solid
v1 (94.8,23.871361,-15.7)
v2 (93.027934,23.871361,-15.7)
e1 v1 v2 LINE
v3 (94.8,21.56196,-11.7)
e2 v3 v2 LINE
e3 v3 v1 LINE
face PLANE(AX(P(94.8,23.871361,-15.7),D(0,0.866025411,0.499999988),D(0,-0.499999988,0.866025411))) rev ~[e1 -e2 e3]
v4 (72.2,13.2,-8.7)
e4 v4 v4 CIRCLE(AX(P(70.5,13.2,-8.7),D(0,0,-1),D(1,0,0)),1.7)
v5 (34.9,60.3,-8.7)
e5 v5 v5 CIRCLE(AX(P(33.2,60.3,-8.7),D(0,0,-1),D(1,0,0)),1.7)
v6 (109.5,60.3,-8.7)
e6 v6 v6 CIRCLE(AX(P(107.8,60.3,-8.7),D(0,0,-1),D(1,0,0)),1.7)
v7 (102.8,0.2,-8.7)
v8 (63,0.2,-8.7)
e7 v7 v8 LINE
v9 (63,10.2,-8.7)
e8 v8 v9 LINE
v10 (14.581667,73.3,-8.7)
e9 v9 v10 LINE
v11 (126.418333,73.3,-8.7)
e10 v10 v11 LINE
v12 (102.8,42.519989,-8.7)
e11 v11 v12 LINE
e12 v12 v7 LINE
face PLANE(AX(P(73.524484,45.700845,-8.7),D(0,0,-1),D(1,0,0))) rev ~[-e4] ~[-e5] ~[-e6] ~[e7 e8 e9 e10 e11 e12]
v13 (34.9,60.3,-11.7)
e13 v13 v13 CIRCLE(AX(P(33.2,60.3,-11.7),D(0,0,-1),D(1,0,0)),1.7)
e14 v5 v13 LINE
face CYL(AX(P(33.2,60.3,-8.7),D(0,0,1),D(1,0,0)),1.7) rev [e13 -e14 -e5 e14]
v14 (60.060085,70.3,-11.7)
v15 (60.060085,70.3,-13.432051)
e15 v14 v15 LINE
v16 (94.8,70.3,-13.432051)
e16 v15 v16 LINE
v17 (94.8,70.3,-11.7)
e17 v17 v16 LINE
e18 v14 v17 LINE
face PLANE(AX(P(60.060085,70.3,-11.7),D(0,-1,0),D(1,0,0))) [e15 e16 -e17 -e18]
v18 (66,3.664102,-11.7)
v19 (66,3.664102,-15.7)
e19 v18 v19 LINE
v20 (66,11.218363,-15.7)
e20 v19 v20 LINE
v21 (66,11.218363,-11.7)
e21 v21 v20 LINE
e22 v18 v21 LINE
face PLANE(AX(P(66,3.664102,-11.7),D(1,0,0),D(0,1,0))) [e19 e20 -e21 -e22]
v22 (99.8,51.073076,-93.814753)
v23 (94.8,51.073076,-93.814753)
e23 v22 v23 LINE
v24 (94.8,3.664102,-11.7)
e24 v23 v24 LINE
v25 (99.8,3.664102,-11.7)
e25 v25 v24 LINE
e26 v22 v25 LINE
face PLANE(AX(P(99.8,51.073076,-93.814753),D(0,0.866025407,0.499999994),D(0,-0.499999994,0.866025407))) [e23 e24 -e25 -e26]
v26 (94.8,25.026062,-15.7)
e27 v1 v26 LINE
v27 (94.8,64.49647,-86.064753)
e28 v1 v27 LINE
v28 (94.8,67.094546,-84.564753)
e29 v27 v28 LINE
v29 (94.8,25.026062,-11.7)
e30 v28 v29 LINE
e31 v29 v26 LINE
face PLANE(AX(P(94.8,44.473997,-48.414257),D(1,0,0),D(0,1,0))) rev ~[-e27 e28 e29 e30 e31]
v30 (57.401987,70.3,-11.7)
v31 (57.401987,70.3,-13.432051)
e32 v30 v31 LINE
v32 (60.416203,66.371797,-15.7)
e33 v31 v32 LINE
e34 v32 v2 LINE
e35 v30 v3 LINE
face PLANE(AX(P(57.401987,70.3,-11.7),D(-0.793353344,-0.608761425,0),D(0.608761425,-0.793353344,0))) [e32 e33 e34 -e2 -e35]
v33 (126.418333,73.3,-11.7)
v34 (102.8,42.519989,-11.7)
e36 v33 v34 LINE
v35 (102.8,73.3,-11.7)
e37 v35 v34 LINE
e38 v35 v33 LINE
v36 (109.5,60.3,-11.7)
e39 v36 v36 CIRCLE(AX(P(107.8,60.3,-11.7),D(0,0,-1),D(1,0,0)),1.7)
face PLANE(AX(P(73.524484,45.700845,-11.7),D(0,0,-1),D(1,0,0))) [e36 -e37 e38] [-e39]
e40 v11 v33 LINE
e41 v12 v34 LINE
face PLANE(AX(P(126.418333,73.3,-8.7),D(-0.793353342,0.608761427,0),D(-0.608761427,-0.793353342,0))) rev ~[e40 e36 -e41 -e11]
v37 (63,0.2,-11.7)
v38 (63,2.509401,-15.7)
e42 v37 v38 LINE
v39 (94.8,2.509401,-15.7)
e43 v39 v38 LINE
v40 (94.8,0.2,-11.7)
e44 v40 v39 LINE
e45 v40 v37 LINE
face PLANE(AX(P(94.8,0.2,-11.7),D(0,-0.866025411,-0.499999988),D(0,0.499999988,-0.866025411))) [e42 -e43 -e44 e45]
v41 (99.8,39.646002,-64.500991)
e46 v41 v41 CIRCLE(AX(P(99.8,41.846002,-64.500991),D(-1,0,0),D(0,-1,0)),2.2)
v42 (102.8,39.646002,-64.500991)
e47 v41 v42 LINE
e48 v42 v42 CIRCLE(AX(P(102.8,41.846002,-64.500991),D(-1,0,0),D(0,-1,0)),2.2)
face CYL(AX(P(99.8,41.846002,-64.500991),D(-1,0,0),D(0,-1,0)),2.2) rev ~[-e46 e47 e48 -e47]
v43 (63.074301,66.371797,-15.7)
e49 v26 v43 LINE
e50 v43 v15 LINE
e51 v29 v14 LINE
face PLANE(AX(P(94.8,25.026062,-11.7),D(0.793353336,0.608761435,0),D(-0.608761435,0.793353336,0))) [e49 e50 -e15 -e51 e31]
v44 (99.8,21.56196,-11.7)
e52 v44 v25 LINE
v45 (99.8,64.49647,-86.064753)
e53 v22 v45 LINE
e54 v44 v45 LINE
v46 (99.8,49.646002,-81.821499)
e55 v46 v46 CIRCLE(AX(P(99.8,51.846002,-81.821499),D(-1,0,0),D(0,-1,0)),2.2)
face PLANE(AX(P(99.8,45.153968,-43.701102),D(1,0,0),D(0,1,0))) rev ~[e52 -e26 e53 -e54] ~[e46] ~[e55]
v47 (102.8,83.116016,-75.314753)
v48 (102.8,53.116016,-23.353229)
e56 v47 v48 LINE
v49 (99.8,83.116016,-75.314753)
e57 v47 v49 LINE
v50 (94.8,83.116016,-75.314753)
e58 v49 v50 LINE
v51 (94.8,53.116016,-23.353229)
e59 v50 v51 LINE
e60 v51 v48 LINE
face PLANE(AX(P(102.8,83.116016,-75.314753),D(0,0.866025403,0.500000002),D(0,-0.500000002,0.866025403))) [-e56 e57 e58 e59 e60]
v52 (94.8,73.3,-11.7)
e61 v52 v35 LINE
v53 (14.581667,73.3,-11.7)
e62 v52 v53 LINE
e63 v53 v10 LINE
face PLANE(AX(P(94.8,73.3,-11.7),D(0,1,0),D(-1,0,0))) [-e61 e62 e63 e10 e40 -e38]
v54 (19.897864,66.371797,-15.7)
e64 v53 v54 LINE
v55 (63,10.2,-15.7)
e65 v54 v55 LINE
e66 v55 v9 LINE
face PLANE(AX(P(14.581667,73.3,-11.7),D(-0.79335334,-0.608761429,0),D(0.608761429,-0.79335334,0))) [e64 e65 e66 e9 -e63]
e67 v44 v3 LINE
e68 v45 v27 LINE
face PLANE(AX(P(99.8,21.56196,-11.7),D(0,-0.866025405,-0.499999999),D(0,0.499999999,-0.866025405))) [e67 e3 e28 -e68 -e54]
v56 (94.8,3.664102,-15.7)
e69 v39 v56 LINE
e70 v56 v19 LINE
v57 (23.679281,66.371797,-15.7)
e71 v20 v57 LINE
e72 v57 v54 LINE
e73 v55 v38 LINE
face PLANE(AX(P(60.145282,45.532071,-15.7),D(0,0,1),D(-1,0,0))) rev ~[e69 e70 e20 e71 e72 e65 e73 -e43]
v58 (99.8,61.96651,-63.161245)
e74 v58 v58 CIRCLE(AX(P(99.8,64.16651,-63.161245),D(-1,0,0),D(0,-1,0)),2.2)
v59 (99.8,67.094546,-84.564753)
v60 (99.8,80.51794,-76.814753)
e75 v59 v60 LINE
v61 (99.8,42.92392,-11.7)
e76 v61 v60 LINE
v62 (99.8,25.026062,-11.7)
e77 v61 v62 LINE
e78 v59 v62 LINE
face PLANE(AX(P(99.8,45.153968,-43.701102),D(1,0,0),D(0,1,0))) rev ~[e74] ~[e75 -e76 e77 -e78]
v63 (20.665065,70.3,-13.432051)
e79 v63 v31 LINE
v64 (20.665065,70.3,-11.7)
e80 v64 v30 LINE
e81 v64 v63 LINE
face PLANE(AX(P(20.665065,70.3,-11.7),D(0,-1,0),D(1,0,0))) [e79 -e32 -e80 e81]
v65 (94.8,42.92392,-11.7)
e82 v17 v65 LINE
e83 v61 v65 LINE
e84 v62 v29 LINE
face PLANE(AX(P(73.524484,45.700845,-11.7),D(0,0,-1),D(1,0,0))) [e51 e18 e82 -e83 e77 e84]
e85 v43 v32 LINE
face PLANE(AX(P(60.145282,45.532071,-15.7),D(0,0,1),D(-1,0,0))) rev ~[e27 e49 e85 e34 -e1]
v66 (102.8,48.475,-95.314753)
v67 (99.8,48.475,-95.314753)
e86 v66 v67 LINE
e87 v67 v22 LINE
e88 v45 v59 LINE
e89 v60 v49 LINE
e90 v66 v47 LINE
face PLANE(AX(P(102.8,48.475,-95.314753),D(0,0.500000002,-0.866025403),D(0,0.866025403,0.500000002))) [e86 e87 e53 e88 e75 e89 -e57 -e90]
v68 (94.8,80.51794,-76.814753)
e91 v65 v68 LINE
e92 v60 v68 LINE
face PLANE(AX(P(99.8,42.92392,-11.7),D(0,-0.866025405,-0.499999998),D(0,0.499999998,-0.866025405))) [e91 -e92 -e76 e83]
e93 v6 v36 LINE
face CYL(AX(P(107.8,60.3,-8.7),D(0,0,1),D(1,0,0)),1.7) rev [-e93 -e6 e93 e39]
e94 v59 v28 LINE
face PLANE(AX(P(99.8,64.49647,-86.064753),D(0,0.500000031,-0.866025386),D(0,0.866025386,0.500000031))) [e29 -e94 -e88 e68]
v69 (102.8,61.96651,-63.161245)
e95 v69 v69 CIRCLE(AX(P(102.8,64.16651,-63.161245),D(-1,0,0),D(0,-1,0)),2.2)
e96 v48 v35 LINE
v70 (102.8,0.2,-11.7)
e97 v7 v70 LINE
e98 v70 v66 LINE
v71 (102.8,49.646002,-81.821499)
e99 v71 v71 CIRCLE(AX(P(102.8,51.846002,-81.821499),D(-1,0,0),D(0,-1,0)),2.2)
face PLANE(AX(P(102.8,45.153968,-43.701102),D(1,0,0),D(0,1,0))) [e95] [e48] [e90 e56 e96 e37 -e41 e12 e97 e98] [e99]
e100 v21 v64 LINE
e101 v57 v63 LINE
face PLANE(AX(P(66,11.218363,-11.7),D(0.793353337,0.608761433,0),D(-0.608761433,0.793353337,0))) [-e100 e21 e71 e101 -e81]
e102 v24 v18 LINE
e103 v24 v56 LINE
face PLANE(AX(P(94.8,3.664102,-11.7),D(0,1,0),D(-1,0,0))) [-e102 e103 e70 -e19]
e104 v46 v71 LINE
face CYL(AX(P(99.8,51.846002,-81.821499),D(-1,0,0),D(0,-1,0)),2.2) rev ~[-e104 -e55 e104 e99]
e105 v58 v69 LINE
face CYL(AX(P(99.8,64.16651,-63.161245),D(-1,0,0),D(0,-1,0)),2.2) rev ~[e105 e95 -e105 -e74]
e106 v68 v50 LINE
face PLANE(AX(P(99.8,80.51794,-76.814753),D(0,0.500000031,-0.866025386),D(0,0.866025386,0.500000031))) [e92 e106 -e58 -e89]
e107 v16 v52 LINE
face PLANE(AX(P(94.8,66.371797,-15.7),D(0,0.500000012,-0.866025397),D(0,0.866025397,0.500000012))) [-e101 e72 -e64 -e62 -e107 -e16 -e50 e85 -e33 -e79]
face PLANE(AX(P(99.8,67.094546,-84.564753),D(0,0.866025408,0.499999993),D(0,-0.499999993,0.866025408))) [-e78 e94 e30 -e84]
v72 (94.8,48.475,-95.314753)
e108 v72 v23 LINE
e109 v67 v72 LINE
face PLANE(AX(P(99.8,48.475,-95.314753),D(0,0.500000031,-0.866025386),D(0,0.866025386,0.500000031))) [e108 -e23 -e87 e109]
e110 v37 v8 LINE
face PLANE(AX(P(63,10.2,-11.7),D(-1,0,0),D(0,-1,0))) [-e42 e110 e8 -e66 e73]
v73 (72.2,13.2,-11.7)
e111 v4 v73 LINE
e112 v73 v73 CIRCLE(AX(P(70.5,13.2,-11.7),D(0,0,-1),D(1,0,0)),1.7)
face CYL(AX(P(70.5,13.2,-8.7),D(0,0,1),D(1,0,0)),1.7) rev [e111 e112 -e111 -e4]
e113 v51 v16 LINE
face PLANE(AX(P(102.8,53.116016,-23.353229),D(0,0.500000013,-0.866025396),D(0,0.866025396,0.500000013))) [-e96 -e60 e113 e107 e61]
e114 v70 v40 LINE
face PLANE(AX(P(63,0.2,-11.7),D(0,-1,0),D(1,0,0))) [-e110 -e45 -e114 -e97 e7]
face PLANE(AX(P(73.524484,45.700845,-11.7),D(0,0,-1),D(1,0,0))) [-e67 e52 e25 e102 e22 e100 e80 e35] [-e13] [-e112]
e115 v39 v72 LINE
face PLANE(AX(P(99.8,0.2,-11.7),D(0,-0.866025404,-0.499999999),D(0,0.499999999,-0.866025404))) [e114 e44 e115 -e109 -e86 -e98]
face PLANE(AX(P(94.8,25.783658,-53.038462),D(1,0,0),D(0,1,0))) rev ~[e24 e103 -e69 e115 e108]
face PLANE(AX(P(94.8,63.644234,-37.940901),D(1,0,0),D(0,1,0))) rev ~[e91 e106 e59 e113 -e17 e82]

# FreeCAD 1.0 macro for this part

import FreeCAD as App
import Part
import Sketcher
Q = App.Units.Quantity


def add_polygon(sketch, points):
    """Adds a closed chain of lines whose ends are joined by coincident constraints."""
    first, n = sketch.GeometryCount, len(points)
    for a, b in zip(points, points[1:] + points[:1]):
        sketch.addGeometry(Part.LineSegment(App.Vector(*a, 0), App.Vector(*b, 0)), False)
    for i in range(n):
        sketch.addConstraint(Sketcher.Constraint("Coincident", first + i, 2, first + (i + 1) % n, 1))

doc = App.newDocument("Part")
body = doc.addObject("PartDesign::Body", "Body")

sketch1 = doc.addObject("Sketcher::SketchObject", "Sketch")
body.addObject(sketch1)
sketch1.AttachmentSupport = (doc.XY_Plane, [""])
sketch1.MapMode = "FlatFace"
sketch1.AttachmentOffset = App.Placement(App.Vector(0, 0, -8.7), App.Rotation())
add_polygon(sketch1, [(63, 0.2), (63, 10.2), (14.6, 73.3), (126.4, 73.3), (102.8, 42.5), (102.8, 0.2)])
sketch1.addGeometry(Part.Circle(App.Vector(33.2, 60.3, 0), App.Vector(0, 0, 1), 1.7), False)
sketch1.addGeometry(Part.Circle(App.Vector(107.8, 60.3, 0), App.Vector(0, 0, 1), 1.7), False)
sketch1.addGeometry(Part.Circle(App.Vector(70.5, 13.2, 0), App.Vector(0, 0, 1), 1.7), False)
sketch1.addConstraint([
    Sketcher.Constraint("Vertical", 0),
    Sketcher.Constraint("Horizontal", 2),
    Sketcher.Constraint("Vertical", 4),
    Sketcher.Constraint("Horizontal", 5),
    Sketcher.Constraint("Equal", 6, 7),
    Sketcher.Constraint("Equal", 7, 8),
    Sketcher.Constraint("Horizontal", 6, 3, 7, 3),
    Sketcher.Constraint("Diameter", 6, Q("3.4 mm")),
    Sketcher.Constraint("DistanceY", 0, 1, 0, 2, Q("10 mm")),
    Sketcher.Constraint("DistanceX", 5, 2, 5, 1, Q("39.8 mm")),
    Sketcher.Constraint("DistanceX", -1, 1, 0, 2, Q("63 mm")),
    Sketcher.Constraint("Angle", 1, Q("127.5 deg")),
    Sketcher.Constraint("Angle", 3, Q("-127.5 deg")),
    Sketcher.Constraint("DistanceY", 0, 2, 8, 3, Q("3 mm")),
    Sketcher.Constraint("DistanceY", 6, 3, 1, 2, Q("13 mm")),
    Sketcher.Constraint("DistanceX", 3, 2, 7, 3, Q("5 mm")),
    Sketcher.Constraint("DistanceX", -1, 1, 6, 3, Q("33.2 mm")),
    Sketcher.Constraint("DistanceY", -1, 1, 6, 3, Q("60.3 mm")),
    Sketcher.Constraint("DistanceX", -1, 1, 8, 3, Q("70.5 mm")),
    Sketcher.Constraint("DistanceY", -1, 1, 8, 3, Q("13.2 mm")),
    Sketcher.Constraint("DistanceY", 4, 2, 4, 1, Q("42.319989 mm")),
])
pad1 = doc.addObject("PartDesign::Pad", "Pad")
body.addObject(pad1)
pad1.Profile = sketch1
pad1.Length = 3
pad1.Reversed = True

sketch2 = doc.addObject("Sketcher::SketchObject", "Sketch001")
body.addObject(sketch2)
sketch2.AttachmentSupport = (doc.YZ_Plane, [""])
sketch2.MapMode = "FlatFace"
sketch2.AttachmentOffset = App.Placement(App.Vector(0, 0, 102.8), App.Rotation())
add_polygon(sketch2, [(0, -12), (48, -95), (83, -75), (53, -23), (73, -12)])
sketch2.addConstraint([
    Sketcher.Constraint("Horizontal", 4),
    Sketcher.Constraint("Perpendicular", 0, 1),
    Sketcher.Constraint("Perpendicular", 1, 2),
    Sketcher.Constraint("Perpendicular", 2, 3),
    Sketcher.Constraint("Angle", 0, Q("-60 deg")),
    Sketcher.Constraint("Distance", 1, Q("40 mm")),
    Sketcher.Constraint("Distance", 2, Q("60 mm")),
    Sketcher.Constraint("DistanceX", 4, 2, 4, 1, Q("73.1 mm")),
    Sketcher.Constraint("DistanceX", -1, 1, 3, 2, Q("73.3 mm")),
    Sketcher.Constraint("DistanceY", 3, 2, -1, 1, Q("11.7 mm")),
])
pad2 = doc.addObject("PartDesign::Pad", "Pad001")
body.addObject(pad2)
pad2.Profile = sketch2
pad2.Length = 3
pad2.Reversed = True

sketch3 = doc.addObject("Sketcher::SketchObject", "Sketch002")
body.addObject(sketch3)
sketch3.AttachmentSupport = (doc.YZ_Plane, [""])
sketch3.MapMode = "FlatFace"
sketch3.AttachmentOffset = App.Placement(App.Vector(0, 0, 99.8), App.Rotation())
sketch3.addGeometry([
    Part.Circle(App.Vector(51.8, -81.8, 0), App.Vector(0, 0, 1), 2.2),
    Part.Circle(App.Vector(41.8, -64.5, 0), App.Vector(0, 0, 1), 2.2),
    Part.Circle(App.Vector(64.2, -63.2, 0), App.Vector(0, 0, 1), 2.2),
], False)
sketch3.addConstraint([
    Sketcher.Constraint("Equal", 0, 1),
    Sketcher.Constraint("Equal", 1, 2),
    Sketcher.Constraint("Diameter", 0, Q("4.4 mm")),
    Sketcher.Constraint("DistanceX", 1, 3, 0, 3, Q("10 mm")),
    Sketcher.Constraint("DistanceY", 0, 3, -1, 1, Q("81.821499 mm")),
    Sketcher.Constraint("DistanceY", 1, 3, -1, 1, Q("64.500991 mm")),
    Sketcher.Constraint("DistanceX", -1, 1, 2, 3, Q("64.16651 mm")),
    Sketcher.Constraint("DistanceX", 0, 3, 2, 3, Q("12.320508 mm")),
    Sketcher.Constraint("DistanceY", 2, 3, -1, 1, Q("63.161245 mm")),
])
pocket1 = doc.addObject("PartDesign::Pocket", "Pocket")
body.addObject(pocket1)
pocket1.Profile = sketch3
pocket1.Type = "ThroughAll"
pocket1.Reversed = True

sketch4 = doc.addObject("Sketcher::SketchObject", "Sketch003")
body.addObject(sketch4)
sketch4.AttachmentSupport = (doc.YZ_Plane, [""])
sketch4.MapMode = "FlatFace"
sketch4.AttachmentOffset = App.Placement(App.Vector(0, 0, 99.8), App.Rotation())
add_polygon(sketch4, [(48.5, -95.3), (0.2, -11.7), (3.7, -11.7), (51.1, -93.8)])
add_polygon(sketch4, [(80.5, -76.8), (42.9, -11.7), (73.3, -11.7), (53.1, -23.4), (83.1, -75.3)])
add_polygon(sketch4, [(64.5, -86.1), (21.6, -11.7), (25, -11.7), (67.1, -84.6)])
sketch4.addConstraint([
    Sketcher.Constraint("Horizontal", 1),
    Sketcher.Constraint("Horizontal", 5),
    Sketcher.Constraint("Horizontal", 10),
    Sketcher.Constraint("Parallel", 0, 2),
    Sketcher.Constraint("Perpendicular", 2, 3),
    Sketcher.Constraint("Perpendicular", 3, 4),
    Sketcher.Constraint("Perpendicular", 4, 6),
    Sketcher.Constraint("Perpendicular", 6, 7),
    Sketcher.Constraint("Perpendicular", 7, 8),
    Sketcher.Constraint("Perpendicular", 8, 9),
    Sketcher.Constraint("Parallel", 9, 11),
    Sketcher.Constraint("Perpendicular", 11, 12),
    Sketcher.Constraint("Horizontal", 1, 2, 4, 2),
    Sketcher.Constraint("Horizontal", 5, 2, 9, 2),
    Sketcher.Constraint("Equal", 1, 10),
    Sketcher.Constraint("Equal", 3, 8),
    Sketcher.Constraint("Angle", 0, Q("120 deg")),
    Sketcher.Constraint("Distance", 3, Q("3 mm")),
    Sketcher.Constraint("Distance", 7, Q("60 mm")),
    Sketcher.Constraint("DistanceY", 3, 2, 7, 2, Q("20 mm")),
    Sketcher.Constraint("DistanceX", -1, 1, 0, 2, Q("0.2 mm")),
    Sketcher.Constraint("DistanceY", 0, 2, -1, 1, Q("11.7 mm")),
    Sketcher.Constraint("DistanceX", -1, 1, 5, 2, Q("73.3 mm")),
    Sketcher.Constraint("Distance", 0, Q("96.55 mm")),
    Sketcher.Constraint("DistanceY", 11, 2, 8, 2, Q("7.75 mm")),
    Sketcher.Constraint("DistanceX", -1, 1, 9, 2, Q("21.56196 mm")),
])
pad3 = doc.addObject("PartDesign::Pad", "Pad002")
body.addObject(pad3)
pad3.Profile = sketch4
pad3.Length = 5
pad3.Reversed = True

sketch5 = doc.addObject("Sketcher::SketchObject", "Sketch004")
body.addObject(sketch5)
sketch5.AttachmentSupport = (doc.XY_Plane, [""])
sketch5.MapMode = "FlatFace"
sketch5.AttachmentOffset = App.Placement(App.Vector(0, 0, -11.7), App.Rotation())
add_polygon(sketch5, [(66, 3.7), (94.8, 3.7), (94.8, 0.2), (63, 0.2), (63, 10.2), (14.6, 73.3), (94.8, 73.3), (94.8, 70.3), (60.1, 70.3), (94.8, 25), (94.8, 21.6), (57.4, 70.3), (20.7, 70.3), (66, 11.2)])
sketch5.addConstraint([
    Sketcher.Constraint("Horizontal", 0),
    Sketcher.Constraint("Vertical", 1),
    Sketcher.Constraint("Horizontal", 2),
    Sketcher.Constraint("Vertical", 3),
    Sketcher.Constraint("Horizontal", 5),
    Sketcher.Constraint("Vertical", 6),
    Sketcher.Constraint("Horizontal", 7),
    Sketcher.Constraint("Vertical", 9),
    Sketcher.Constraint("Horizontal", 11),
    Sketcher.Constraint("Vertical", 13),
    Sketcher.Constraint("Parallel", 4, 8),
    Sketcher.Constraint("Parallel", 8, 10),
    Sketcher.Constraint("Parallel", 10, 12),
    Sketcher.Constraint("Horizontal", 7, 2, 10, 2),
    Sketcher.Constraint("Vertical", 1, 2, 5, 2),
    Sketcher.Constraint("Vertical", 6, 2, 8, 2),
    Sketcher.Constraint("Equal", 1, 9),
    Sketcher.Constraint("DistanceY", 3, 1, 3, 2, Q("10 mm")),
    Sketcher.Constraint("DistanceY", 6, 2, 6, 1, Q("3 mm")),
    Sketcher.Constraint("DistanceX", 0, 1, 0, 2, Q("28.8 mm")),
    Sketcher.Constraint("DistanceX", 2, 2, 2, 1, Q("31.8 mm")),
    Sketcher.Constraint("DistanceX", -1, 1, 2, 2, Q("63 mm")),
    Sketcher.Constraint("Angle", 4, Q("127.5 deg")),
    Sketcher.Constraint("DistanceY", -1, 1, 1, 2, Q("0.2 mm")),
    Sketcher.Constraint("DistanceY", -1, 1, 4, 2, Q("73.3 mm")),
    Sketcher.Constraint("DistanceY", 1, 2, 1, 1, Q("3.464102 mm")),
    Sketcher.Constraint("DistanceY", 13, 2, 13, 1, Q("7.554261 mm")),
    Sketcher.Constraint("Distance", 8, Q("57.06655 mm")),
])
pad4 = doc.addObject("PartDesign::Pad", "Pad003")
body.addObject(pad4)
pad4.Profile = sketch5
pad4.Length = 4
pad4.Reversed = True

sketch6 = doc.addObject("Sketcher::SketchObject", "Sketch005")
body.addObject(sketch6)
sketch6.AttachmentSupport = (doc.YZ_Plane, [""])
sketch6.MapMode = "FlatFace"
sketch6.AttachmentOffset = App.Placement(App.Vector(0, 0, 94.8), App.Rotation())
add_polygon(sketch6, [(0.2, -15.7), (2.5, -15.7), (0.2, -11.7)])
add_polygon(sketch6, [(23.9, -15.7), (21.6, -11.7), (21.6, -15.7)])
sketch6.addConstraint([
    Sketcher.Constraint("Horizontal", 0),
    Sketcher.Constraint("Vertical", 2),
    Sketcher.Constraint("Vertical", 4),
    Sketcher.Constraint("Horizontal", 5),
    Sketcher.Constraint("Parallel", 1, 3),
    Sketcher.Constraint("Horizontal", 1, 2, 3, 2),
    Sketcher.Constraint("Horizontal", 2, 2, 4, 2),
    Sketcher.Constraint("DistanceY", 2, 2, 2, 1, Q("4 mm")),
    Sketcher.Constraint("Angle", 1, Q("119.999999 deg")),
    Sketcher.Constraint("DistanceY", 0, 2, -1, 1, Q("15.7 mm")),
    Sketcher.Constraint("DistanceX", -1, 1, 1, 2, Q("0.2 mm")),
    Sketcher.Constraint("DistanceX", -1, 1, 3, 2, Q("21.56196 mm")),
])
pocket2 = doc.addObject("PartDesign::Pocket", "Pocket001")
body.addObject(pocket2)
pocket2.Profile = sketch6
pocket2.Length = 31.8

sketch7 = doc.addObject("Sketcher::SketchObject", "Sketch006")
body.addObject(sketch7)
sketch7.AttachmentSupport = (doc.YZ_Plane, [""])
sketch7.MapMode = "FlatFace"
sketch7.AttachmentOffset = App.Placement(App.Vector(0, 0, 94.8), App.Rotation())
add_polygon(sketch7, [(73.3, -15.7), (73.3, -11.7), (66.4, -15.7)])
sketch7.addConstraint([
    Sketcher.Constraint("Vertical", 0),
    Sketcher.Constraint("Horizontal", 2),
    Sketcher.Constraint("DistanceY", 0, 1, 0, 2, Q("4 mm")),
    Sketcher.Constraint("Angle", 1, Q("-149.999999 deg")),
    Sketcher.Constraint("DistanceX", -1, 1, 0, 2, Q("73.3 mm")),
    Sketcher.Constraint("DistanceY", 0, 2, -1, 1, Q("11.7 mm")),
])
pocket3 = doc.addObject("PartDesign::Pocket", "Pocket002")
body.addObject(pocket3)
pocket3.Profile = sketch7
pocket3.Type = "ThroughAll"

doc.recompute()
